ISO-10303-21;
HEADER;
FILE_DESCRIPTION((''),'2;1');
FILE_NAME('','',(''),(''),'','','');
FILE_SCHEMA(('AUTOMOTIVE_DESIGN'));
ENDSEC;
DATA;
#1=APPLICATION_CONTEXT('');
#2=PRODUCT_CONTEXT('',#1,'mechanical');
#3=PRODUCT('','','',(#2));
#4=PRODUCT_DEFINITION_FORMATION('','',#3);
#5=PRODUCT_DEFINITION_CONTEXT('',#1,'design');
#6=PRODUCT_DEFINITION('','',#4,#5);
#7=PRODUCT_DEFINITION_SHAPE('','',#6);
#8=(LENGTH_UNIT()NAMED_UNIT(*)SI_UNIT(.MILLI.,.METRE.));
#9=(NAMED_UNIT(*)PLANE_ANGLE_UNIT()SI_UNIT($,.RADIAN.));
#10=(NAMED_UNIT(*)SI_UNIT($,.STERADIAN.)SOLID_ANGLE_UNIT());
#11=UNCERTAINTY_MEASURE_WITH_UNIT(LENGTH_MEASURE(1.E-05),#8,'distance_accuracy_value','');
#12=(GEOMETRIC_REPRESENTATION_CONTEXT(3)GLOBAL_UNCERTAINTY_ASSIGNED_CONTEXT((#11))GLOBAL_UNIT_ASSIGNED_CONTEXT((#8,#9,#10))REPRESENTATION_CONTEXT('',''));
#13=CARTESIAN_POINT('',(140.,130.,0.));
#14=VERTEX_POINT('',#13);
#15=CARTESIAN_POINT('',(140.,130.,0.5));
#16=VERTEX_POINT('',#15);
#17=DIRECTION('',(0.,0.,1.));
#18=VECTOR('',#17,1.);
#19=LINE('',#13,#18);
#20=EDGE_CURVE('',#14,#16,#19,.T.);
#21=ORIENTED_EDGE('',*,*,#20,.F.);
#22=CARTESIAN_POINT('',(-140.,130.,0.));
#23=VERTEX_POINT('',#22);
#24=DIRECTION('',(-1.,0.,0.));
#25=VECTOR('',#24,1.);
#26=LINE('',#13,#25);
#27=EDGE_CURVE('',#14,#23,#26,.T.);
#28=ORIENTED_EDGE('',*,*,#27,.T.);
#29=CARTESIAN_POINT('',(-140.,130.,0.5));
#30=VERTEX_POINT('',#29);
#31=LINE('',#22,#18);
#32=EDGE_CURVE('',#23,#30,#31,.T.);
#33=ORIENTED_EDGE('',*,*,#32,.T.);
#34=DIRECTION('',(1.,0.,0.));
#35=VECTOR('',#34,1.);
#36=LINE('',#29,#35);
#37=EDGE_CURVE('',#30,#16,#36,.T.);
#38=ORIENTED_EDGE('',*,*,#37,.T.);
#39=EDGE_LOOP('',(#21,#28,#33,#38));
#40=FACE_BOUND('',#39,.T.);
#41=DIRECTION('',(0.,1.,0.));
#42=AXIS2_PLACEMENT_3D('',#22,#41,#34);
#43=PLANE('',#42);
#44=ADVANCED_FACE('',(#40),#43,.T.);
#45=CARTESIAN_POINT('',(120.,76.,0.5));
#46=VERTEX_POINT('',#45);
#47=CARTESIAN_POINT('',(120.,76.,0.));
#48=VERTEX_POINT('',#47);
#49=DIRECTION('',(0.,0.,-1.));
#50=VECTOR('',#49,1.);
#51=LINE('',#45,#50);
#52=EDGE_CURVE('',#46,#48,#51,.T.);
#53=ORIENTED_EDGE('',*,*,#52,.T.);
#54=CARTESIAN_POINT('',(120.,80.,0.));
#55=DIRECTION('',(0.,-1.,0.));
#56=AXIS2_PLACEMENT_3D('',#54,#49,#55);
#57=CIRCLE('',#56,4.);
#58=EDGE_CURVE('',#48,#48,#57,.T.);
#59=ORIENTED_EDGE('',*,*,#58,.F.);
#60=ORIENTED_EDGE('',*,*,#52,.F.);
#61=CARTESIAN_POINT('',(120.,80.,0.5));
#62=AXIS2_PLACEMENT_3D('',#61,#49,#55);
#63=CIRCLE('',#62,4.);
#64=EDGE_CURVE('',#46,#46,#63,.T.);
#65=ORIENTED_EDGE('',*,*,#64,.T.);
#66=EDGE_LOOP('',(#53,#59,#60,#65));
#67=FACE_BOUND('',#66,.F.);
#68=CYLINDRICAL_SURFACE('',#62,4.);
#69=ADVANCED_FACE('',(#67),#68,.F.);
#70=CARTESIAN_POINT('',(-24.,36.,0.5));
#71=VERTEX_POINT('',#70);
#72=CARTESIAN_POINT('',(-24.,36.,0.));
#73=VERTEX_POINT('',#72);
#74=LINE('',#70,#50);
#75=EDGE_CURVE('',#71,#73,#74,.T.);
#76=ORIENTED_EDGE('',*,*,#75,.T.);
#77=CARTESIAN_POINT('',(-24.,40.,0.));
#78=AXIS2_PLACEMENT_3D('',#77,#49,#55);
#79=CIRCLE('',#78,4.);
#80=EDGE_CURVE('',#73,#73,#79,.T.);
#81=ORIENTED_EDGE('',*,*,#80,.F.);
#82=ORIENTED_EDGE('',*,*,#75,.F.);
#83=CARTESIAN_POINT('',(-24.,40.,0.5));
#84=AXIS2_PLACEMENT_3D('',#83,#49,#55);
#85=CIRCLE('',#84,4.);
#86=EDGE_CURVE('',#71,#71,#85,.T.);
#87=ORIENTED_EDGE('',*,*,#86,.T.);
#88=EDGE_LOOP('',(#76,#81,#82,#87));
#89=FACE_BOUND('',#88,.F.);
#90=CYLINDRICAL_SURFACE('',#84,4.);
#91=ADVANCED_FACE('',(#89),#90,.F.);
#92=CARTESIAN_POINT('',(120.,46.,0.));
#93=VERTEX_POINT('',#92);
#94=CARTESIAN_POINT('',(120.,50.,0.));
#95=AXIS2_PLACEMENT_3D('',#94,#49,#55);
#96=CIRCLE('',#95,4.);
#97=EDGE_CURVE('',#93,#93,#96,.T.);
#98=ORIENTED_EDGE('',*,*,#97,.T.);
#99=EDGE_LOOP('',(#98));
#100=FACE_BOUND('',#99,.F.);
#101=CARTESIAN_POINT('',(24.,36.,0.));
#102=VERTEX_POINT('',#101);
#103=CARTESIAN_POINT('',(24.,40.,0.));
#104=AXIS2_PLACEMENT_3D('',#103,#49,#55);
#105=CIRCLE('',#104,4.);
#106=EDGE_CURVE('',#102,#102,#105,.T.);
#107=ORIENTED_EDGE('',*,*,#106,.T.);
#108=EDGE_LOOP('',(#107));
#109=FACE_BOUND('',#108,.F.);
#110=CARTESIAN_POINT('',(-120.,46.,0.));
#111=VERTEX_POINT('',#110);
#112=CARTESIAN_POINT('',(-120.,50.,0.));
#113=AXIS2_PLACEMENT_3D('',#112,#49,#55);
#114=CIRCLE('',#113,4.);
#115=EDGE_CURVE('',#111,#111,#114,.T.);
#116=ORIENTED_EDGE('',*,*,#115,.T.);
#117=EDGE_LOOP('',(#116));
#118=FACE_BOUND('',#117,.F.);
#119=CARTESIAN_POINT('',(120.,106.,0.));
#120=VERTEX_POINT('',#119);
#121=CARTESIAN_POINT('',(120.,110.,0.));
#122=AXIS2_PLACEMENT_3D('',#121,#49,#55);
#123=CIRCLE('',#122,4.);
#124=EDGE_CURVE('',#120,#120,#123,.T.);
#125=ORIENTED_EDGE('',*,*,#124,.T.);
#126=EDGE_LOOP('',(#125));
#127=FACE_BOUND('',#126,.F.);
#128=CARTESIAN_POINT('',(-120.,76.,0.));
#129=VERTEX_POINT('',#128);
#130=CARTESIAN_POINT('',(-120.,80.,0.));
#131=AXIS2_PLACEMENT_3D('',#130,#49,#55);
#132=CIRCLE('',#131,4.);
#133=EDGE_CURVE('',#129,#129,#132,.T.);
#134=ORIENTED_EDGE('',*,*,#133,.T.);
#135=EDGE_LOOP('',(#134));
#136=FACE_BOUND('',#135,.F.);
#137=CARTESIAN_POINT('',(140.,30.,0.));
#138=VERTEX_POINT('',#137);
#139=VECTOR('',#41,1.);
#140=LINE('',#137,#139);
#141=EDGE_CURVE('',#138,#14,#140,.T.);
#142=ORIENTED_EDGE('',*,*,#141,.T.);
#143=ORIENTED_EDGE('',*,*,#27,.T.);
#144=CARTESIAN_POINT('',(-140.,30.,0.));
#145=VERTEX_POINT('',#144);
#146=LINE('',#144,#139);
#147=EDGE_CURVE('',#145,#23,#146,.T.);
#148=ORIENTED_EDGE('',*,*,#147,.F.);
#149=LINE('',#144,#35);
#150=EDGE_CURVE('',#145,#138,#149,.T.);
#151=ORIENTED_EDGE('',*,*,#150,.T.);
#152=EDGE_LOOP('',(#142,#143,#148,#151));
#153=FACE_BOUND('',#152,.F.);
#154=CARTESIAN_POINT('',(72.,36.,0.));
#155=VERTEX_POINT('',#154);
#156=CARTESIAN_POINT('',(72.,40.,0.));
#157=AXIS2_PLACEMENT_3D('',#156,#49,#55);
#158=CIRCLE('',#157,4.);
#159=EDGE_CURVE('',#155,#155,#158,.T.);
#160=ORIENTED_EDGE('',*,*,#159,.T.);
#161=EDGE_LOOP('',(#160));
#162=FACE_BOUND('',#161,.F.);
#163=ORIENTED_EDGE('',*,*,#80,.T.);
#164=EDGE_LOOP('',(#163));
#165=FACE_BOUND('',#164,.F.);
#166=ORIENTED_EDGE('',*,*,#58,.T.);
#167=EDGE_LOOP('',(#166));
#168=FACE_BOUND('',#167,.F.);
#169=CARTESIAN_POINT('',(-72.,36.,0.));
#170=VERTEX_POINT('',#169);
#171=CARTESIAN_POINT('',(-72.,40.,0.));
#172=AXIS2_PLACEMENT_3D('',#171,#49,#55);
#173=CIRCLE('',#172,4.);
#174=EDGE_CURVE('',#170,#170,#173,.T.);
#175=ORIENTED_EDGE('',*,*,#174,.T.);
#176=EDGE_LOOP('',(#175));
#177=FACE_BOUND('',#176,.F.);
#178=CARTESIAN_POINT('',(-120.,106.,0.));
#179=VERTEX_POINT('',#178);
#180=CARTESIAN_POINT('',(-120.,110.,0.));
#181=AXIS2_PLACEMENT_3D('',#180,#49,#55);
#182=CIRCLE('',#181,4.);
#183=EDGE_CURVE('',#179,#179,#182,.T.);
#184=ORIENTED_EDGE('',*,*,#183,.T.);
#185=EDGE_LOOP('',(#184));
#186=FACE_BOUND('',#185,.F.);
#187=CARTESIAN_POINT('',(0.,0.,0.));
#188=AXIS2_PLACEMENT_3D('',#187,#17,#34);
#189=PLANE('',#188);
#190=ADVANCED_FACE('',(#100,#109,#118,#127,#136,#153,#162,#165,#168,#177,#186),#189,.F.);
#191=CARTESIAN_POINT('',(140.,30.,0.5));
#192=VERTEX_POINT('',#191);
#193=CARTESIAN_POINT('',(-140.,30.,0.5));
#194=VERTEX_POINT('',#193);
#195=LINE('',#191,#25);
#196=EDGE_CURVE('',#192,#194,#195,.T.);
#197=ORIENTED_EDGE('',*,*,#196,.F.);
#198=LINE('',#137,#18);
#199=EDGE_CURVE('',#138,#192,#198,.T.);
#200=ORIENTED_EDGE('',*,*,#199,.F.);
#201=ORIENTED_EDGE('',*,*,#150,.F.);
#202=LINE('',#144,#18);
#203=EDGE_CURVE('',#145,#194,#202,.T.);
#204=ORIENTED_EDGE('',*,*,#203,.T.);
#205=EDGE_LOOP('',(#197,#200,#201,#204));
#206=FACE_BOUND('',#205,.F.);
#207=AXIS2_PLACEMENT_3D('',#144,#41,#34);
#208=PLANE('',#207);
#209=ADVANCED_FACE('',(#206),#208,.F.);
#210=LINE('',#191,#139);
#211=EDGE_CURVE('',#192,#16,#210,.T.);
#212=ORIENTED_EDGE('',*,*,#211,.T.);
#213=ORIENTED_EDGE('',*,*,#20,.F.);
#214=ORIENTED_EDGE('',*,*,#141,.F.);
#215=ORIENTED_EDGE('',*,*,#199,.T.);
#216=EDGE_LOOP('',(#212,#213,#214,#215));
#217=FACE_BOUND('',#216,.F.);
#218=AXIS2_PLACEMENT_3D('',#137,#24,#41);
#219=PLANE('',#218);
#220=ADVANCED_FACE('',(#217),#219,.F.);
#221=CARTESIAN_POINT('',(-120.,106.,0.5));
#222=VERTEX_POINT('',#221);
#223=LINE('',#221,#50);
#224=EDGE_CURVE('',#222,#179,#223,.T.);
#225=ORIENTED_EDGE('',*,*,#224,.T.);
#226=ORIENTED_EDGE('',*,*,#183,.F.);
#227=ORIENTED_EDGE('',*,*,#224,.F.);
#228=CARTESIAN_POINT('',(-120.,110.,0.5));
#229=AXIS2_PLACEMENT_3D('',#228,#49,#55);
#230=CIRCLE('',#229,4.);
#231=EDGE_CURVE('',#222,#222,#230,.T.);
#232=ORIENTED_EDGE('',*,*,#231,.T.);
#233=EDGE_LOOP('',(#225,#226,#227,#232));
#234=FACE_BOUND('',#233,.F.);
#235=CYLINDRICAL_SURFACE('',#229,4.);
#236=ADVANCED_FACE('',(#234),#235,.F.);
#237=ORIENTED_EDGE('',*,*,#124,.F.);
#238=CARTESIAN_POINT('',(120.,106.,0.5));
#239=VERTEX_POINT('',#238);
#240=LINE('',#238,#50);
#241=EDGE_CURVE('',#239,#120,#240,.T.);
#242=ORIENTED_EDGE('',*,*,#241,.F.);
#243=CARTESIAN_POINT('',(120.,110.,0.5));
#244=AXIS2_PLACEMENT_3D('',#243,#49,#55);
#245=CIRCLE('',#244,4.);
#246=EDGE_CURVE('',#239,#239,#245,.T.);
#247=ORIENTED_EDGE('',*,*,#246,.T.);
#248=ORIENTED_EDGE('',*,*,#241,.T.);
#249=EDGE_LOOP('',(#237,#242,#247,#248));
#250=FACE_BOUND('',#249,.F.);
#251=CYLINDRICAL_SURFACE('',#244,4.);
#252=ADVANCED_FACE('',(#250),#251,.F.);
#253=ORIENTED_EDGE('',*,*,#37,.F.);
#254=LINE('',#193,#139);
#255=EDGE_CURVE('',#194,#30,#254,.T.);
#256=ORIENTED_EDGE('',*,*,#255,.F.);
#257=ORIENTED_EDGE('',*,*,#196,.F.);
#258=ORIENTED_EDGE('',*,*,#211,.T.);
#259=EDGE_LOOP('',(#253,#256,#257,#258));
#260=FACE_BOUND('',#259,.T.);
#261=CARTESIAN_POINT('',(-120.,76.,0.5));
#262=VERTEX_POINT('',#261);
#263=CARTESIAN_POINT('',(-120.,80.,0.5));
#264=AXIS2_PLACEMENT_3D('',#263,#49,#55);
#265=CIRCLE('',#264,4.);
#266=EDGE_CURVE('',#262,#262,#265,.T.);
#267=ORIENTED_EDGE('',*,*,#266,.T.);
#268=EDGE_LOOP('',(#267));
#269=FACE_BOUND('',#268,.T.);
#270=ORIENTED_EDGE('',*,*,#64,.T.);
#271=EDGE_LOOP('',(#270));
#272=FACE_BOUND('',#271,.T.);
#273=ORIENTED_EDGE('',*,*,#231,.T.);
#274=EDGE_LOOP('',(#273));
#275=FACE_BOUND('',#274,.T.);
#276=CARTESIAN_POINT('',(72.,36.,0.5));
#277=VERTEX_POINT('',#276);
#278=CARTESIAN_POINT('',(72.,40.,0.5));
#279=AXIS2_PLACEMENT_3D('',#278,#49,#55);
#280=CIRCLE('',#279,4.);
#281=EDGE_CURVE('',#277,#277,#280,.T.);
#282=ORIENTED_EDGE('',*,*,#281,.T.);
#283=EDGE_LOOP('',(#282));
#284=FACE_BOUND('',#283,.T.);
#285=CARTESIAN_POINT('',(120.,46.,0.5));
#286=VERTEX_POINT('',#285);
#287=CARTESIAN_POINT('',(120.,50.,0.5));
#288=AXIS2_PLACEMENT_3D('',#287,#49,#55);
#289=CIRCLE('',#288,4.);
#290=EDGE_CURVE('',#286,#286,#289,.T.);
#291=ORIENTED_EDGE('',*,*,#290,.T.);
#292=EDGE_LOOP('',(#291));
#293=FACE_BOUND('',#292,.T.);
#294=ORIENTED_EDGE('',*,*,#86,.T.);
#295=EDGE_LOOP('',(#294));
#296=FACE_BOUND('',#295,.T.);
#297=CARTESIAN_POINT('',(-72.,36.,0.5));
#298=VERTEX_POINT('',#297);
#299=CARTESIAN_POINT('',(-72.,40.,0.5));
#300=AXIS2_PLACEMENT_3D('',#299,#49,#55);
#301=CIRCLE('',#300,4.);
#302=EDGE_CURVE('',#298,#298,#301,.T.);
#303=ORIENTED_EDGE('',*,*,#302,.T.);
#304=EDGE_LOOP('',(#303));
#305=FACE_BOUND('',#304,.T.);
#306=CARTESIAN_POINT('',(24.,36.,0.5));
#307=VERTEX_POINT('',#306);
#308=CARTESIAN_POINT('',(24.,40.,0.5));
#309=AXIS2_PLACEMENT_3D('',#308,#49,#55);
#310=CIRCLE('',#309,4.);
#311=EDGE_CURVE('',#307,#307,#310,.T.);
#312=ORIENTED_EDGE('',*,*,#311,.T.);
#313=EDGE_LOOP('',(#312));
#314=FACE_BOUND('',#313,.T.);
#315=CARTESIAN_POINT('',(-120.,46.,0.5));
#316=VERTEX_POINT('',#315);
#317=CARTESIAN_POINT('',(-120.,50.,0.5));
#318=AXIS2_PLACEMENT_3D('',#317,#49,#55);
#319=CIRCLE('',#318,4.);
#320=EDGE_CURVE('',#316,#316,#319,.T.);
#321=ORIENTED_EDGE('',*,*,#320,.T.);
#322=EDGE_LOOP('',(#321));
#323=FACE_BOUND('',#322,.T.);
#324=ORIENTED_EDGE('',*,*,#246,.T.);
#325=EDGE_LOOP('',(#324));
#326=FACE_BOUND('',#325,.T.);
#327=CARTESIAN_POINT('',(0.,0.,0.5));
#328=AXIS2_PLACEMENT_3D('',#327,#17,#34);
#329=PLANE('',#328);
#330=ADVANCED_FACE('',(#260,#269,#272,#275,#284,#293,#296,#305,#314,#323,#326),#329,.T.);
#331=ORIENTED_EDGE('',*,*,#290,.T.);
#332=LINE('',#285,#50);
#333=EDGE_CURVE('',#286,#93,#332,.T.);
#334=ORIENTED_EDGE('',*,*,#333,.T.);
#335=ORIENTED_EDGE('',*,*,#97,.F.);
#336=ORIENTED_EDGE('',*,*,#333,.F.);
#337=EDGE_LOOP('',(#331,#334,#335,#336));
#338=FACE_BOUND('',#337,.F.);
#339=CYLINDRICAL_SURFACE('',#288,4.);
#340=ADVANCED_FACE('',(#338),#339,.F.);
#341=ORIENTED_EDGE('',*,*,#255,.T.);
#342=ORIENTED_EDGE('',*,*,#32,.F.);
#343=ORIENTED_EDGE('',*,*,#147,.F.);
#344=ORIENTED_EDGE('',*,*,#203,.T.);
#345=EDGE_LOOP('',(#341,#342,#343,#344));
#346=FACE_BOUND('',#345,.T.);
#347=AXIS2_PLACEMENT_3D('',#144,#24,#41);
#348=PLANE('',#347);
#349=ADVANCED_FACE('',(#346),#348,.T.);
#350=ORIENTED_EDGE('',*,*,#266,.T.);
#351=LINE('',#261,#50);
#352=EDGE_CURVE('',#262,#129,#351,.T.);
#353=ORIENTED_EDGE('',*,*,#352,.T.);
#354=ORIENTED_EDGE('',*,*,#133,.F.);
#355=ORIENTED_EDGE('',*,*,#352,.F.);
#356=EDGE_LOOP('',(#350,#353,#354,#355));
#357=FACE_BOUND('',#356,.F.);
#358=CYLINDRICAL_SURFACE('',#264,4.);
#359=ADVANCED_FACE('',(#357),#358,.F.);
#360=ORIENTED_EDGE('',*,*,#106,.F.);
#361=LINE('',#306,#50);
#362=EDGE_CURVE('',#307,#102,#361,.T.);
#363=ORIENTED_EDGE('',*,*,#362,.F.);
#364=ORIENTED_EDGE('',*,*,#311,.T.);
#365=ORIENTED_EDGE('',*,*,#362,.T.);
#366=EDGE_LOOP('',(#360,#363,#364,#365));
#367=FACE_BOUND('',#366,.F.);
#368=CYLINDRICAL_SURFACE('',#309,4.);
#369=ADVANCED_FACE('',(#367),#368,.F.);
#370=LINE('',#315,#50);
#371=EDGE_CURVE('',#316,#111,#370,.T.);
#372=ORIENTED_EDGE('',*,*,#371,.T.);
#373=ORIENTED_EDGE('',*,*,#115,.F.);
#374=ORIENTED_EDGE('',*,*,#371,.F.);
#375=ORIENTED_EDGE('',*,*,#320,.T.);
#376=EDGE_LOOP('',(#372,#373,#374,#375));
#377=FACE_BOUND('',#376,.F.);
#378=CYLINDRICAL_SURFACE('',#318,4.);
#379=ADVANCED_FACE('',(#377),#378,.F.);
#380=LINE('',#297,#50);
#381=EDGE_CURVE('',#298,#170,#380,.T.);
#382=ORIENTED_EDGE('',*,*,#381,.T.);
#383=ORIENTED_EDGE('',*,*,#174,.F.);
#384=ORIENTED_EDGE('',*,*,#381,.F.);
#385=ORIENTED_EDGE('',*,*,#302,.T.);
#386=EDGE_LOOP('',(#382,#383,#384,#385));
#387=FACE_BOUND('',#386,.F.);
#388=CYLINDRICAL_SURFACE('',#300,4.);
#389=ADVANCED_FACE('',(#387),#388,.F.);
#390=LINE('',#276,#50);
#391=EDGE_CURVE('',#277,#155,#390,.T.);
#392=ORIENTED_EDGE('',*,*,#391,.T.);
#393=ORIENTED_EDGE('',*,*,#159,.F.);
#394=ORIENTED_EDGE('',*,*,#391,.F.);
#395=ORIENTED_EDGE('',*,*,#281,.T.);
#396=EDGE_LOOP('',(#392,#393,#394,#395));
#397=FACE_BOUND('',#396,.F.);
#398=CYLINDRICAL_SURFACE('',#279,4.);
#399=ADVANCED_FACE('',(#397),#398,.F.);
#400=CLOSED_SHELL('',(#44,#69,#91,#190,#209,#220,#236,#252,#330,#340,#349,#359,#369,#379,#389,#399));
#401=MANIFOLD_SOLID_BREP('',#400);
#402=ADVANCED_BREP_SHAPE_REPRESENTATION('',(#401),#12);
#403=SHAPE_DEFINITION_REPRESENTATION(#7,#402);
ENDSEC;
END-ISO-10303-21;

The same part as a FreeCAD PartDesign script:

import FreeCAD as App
import Part
import Sketcher
from FreeCAD import Vector

doc = App.newDocument("Part")
body = doc.addObject("PartDesign::Body", "Body")

# Sketch on XY plane
sketch1 = body.newObject("Sketcher::SketchObject", "Sketch")
sketch1.AttachmentSupport = (doc.getObject("XY_Plane"), [""])
sketch1.MapMode = "FlatFace"
sketch1.addGeometry(Part.LineSegment(Vector(-140, 130, 0), Vector(-140, 30, 0)), False)
sketch1.addGeometry(Part.LineSegment(Vector(-140, 30, 0), Vector(140, 30, 0)), False)
sketch1.addGeometry(Part.LineSegment(Vector(140, 30, 0), Vector(140, 130, 0)), False)
sketch1.addGeometry(Part.LineSegment(Vector(140, 130, 0), Vector(-140, 130, 0)), False)
sketch1.addConstraint(Sketcher.Constraint("Coincident", 0, 2, 1, 1))
sketch1.addConstraint(Sketcher.Constraint("Coincident", 1, 2, 2, 1))
sketch1.addConstraint(Sketcher.Constraint("Coincident", 2, 2, 3, 1))
sketch1.addConstraint(Sketcher.Constraint("Coincident", 3, 2, 0, 1))
sketch1.addConstraint(Sketcher.Constraint("Vertical", 0))
sketch1.addConstraint(Sketcher.Constraint("Horizontal", 1))
sketch1.addConstraint(Sketcher.Constraint("Vertical", 2))
sketch1.addConstraint(Sketcher.Constraint("Horizontal", 3))
sketch1.addConstraint(Sketcher.Constraint("DistanceY", 0, 2, 0, 1, 100.0))
sketch1.addConstraint(Sketcher.Constraint("DistanceX", 0, 2, -1, 1, 140.0))
sketch1.addConstraint(Sketcher.Constraint("DistanceX", -1, 1, 1, 2, 140.0))
sketch1.addConstraint(Sketcher.Constraint("DistanceY", -1, 1, 0, 2, 30.0))
pad1 = body.newObject("PartDesign::Pad", "Pad")
pad1.Profile = sketch1
pad1.Length = 0.5

# Sketch on XY plane
sketch2 = body.newObject("Sketcher::SketchObject", "Sketch001")
sketch2.AttachmentSupport = (doc.getObject("XY_Plane"), [""])
sketch2.MapMode = "FlatFace"
sketch2.AttachmentOffset = App.Placement(Vector(0, 0, 0.5), App.Rotation())
sketch2.addGeometry(Part.Circle(Vector(-120, 110, 0), Vector(0, 0, 1), 4), False)
sketch2.addGeometry(Part.Circle(Vector(-120, 80, 0), Vector(0, 0, 1), 4), False)
sketch2.addGeometry(Part.Circle(Vector(-120, 50, 0), Vector(0, 0, 1), 4), False)
sketch2.addGeometry(Part.Circle(Vector(120, 110, 0), Vector(0, 0, 1), 4), False)
sketch2.addGeometry(Part.Circle(Vector(120, 80, 0), Vector(0, 0, 1), 4), False)
sketch2.addGeometry(Part.Circle(Vector(120, 50, 0), Vector(0, 0, 1), 4), False)
sketch2.addConstraint(Sketcher.Constraint("Equal", 0, 1))
sketch2.addConstraint(Sketcher.Constraint("Equal", 1, 2))
sketch2.addConstraint(Sketcher.Constraint("Equal", 2, 3))
sketch2.addConstraint(Sketcher.Constraint("Equal", 3, 4))
sketch2.addConstraint(Sketcher.Constraint("Equal", 4, 5))
sketch2.addConstraint(Sketcher.Constraint("Symmetric", 0, 3, 3, 3, -2))
sketch2.addConstraint(Sketcher.Constraint("Symmetric", 1, 3, 4, 3, -2))
sketch2.addConstraint(Sketcher.Constraint("Symmetric", 2, 3, 5, 3, -2))
sketch2.addConstraint(Sketcher.Constraint("Vertical", 0, 3, 1, 3))
sketch2.addConstraint(Sketcher.Constraint("Vertical", 1, 3, 2, 3))
sketch2.addConstraint(Sketcher.Constraint("Diameter", 0, 8.0))
sketch2.addConstraint(Sketcher.Constraint("DistanceX", 0, 3, -1, 1, 120.0))
sketch2.addConstraint(Sketcher.Constraint("DistanceY", -1, 1, 0, 3, 110.0))
sketch2.addConstraint(Sketcher.Constraint("DistanceY", -1, 1, 1, 3, 80.0))
sketch2.addConstraint(Sketcher.Constraint("DistanceY", -1, 1, 2, 3, 50.0))
doc.recompute()
hole = body.newObject("PartDesign::Hole", "Hole")
hole.Profile = sketch2
hole.ThreadType = "None"
hole.Diameter = 8
hole.DepthType = "ThroughAll"

# Sketch on XY plane
sketch3 = body.newObject("Sketcher::SketchObject", "Sketch002")
sketch3.AttachmentSupport = (doc.getObject("XY_Plane"), [""])
sketch3.MapMode = "FlatFace"
sketch3.AttachmentOffset = App.Placement(Vector(0, 0, 0.5), App.Rotation())
sketch3.addGeometry(Part.Circle(Vector(-72, 40, 0), Vector(0, 0, 1), 4), False)
sketch3.addGeometry(Part.Circle(Vector(-24, 40, 0), Vector(0, 0, 1), 4), False)
sketch3.addGeometry(Part.Circle(Vector(24, 40, 0), Vector(0, 0, 1), 4), False)
sketch3.addGeometry(Part.Circle(Vector(72, 40, 0), Vector(0, 0, 1), 4), False)
sketch3.addConstraint(Sketcher.Constraint("Equal", 0, 1))
sketch3.addConstraint(Sketcher.Constraint("Equal", 1, 2))
sketch3.addConstraint(Sketcher.Constraint("Equal", 2, 3))
sketch3.addConstraint(Sketcher.Constraint("Symmetric", 1, 3, 2, 3, -2))
sketch3.addConstraint(Sketcher.Constraint("Symmetric", 0, 3, 3, 3, -2))
sketch3.addConstraint(Sketcher.Constraint("Horizontal", 0, 3, 1, 3))
sketch3.addConstraint(Sketcher.Constraint("Diameter", 0, 8.0))
sketch3.addConstraint(Sketcher.Constraint("DistanceX", 0, 3, -1, 1, 72.0))
sketch3.addConstraint(Sketcher.Constraint("DistanceY", -1, 1, 0, 3, 40.0))
sketch3.addConstraint(Sketcher.Constraint("DistanceX", 1, 3, -1, 1, 24.0))
doc.recompute()
hole2 = body.newObject("PartDesign::Hole", "Hole001")
hole2.Profile = sketch3
hole2.ThreadType = "None"
hole2.Diameter = 8
hole2.DepthType = "ThroughAll"

doc.recompute()
